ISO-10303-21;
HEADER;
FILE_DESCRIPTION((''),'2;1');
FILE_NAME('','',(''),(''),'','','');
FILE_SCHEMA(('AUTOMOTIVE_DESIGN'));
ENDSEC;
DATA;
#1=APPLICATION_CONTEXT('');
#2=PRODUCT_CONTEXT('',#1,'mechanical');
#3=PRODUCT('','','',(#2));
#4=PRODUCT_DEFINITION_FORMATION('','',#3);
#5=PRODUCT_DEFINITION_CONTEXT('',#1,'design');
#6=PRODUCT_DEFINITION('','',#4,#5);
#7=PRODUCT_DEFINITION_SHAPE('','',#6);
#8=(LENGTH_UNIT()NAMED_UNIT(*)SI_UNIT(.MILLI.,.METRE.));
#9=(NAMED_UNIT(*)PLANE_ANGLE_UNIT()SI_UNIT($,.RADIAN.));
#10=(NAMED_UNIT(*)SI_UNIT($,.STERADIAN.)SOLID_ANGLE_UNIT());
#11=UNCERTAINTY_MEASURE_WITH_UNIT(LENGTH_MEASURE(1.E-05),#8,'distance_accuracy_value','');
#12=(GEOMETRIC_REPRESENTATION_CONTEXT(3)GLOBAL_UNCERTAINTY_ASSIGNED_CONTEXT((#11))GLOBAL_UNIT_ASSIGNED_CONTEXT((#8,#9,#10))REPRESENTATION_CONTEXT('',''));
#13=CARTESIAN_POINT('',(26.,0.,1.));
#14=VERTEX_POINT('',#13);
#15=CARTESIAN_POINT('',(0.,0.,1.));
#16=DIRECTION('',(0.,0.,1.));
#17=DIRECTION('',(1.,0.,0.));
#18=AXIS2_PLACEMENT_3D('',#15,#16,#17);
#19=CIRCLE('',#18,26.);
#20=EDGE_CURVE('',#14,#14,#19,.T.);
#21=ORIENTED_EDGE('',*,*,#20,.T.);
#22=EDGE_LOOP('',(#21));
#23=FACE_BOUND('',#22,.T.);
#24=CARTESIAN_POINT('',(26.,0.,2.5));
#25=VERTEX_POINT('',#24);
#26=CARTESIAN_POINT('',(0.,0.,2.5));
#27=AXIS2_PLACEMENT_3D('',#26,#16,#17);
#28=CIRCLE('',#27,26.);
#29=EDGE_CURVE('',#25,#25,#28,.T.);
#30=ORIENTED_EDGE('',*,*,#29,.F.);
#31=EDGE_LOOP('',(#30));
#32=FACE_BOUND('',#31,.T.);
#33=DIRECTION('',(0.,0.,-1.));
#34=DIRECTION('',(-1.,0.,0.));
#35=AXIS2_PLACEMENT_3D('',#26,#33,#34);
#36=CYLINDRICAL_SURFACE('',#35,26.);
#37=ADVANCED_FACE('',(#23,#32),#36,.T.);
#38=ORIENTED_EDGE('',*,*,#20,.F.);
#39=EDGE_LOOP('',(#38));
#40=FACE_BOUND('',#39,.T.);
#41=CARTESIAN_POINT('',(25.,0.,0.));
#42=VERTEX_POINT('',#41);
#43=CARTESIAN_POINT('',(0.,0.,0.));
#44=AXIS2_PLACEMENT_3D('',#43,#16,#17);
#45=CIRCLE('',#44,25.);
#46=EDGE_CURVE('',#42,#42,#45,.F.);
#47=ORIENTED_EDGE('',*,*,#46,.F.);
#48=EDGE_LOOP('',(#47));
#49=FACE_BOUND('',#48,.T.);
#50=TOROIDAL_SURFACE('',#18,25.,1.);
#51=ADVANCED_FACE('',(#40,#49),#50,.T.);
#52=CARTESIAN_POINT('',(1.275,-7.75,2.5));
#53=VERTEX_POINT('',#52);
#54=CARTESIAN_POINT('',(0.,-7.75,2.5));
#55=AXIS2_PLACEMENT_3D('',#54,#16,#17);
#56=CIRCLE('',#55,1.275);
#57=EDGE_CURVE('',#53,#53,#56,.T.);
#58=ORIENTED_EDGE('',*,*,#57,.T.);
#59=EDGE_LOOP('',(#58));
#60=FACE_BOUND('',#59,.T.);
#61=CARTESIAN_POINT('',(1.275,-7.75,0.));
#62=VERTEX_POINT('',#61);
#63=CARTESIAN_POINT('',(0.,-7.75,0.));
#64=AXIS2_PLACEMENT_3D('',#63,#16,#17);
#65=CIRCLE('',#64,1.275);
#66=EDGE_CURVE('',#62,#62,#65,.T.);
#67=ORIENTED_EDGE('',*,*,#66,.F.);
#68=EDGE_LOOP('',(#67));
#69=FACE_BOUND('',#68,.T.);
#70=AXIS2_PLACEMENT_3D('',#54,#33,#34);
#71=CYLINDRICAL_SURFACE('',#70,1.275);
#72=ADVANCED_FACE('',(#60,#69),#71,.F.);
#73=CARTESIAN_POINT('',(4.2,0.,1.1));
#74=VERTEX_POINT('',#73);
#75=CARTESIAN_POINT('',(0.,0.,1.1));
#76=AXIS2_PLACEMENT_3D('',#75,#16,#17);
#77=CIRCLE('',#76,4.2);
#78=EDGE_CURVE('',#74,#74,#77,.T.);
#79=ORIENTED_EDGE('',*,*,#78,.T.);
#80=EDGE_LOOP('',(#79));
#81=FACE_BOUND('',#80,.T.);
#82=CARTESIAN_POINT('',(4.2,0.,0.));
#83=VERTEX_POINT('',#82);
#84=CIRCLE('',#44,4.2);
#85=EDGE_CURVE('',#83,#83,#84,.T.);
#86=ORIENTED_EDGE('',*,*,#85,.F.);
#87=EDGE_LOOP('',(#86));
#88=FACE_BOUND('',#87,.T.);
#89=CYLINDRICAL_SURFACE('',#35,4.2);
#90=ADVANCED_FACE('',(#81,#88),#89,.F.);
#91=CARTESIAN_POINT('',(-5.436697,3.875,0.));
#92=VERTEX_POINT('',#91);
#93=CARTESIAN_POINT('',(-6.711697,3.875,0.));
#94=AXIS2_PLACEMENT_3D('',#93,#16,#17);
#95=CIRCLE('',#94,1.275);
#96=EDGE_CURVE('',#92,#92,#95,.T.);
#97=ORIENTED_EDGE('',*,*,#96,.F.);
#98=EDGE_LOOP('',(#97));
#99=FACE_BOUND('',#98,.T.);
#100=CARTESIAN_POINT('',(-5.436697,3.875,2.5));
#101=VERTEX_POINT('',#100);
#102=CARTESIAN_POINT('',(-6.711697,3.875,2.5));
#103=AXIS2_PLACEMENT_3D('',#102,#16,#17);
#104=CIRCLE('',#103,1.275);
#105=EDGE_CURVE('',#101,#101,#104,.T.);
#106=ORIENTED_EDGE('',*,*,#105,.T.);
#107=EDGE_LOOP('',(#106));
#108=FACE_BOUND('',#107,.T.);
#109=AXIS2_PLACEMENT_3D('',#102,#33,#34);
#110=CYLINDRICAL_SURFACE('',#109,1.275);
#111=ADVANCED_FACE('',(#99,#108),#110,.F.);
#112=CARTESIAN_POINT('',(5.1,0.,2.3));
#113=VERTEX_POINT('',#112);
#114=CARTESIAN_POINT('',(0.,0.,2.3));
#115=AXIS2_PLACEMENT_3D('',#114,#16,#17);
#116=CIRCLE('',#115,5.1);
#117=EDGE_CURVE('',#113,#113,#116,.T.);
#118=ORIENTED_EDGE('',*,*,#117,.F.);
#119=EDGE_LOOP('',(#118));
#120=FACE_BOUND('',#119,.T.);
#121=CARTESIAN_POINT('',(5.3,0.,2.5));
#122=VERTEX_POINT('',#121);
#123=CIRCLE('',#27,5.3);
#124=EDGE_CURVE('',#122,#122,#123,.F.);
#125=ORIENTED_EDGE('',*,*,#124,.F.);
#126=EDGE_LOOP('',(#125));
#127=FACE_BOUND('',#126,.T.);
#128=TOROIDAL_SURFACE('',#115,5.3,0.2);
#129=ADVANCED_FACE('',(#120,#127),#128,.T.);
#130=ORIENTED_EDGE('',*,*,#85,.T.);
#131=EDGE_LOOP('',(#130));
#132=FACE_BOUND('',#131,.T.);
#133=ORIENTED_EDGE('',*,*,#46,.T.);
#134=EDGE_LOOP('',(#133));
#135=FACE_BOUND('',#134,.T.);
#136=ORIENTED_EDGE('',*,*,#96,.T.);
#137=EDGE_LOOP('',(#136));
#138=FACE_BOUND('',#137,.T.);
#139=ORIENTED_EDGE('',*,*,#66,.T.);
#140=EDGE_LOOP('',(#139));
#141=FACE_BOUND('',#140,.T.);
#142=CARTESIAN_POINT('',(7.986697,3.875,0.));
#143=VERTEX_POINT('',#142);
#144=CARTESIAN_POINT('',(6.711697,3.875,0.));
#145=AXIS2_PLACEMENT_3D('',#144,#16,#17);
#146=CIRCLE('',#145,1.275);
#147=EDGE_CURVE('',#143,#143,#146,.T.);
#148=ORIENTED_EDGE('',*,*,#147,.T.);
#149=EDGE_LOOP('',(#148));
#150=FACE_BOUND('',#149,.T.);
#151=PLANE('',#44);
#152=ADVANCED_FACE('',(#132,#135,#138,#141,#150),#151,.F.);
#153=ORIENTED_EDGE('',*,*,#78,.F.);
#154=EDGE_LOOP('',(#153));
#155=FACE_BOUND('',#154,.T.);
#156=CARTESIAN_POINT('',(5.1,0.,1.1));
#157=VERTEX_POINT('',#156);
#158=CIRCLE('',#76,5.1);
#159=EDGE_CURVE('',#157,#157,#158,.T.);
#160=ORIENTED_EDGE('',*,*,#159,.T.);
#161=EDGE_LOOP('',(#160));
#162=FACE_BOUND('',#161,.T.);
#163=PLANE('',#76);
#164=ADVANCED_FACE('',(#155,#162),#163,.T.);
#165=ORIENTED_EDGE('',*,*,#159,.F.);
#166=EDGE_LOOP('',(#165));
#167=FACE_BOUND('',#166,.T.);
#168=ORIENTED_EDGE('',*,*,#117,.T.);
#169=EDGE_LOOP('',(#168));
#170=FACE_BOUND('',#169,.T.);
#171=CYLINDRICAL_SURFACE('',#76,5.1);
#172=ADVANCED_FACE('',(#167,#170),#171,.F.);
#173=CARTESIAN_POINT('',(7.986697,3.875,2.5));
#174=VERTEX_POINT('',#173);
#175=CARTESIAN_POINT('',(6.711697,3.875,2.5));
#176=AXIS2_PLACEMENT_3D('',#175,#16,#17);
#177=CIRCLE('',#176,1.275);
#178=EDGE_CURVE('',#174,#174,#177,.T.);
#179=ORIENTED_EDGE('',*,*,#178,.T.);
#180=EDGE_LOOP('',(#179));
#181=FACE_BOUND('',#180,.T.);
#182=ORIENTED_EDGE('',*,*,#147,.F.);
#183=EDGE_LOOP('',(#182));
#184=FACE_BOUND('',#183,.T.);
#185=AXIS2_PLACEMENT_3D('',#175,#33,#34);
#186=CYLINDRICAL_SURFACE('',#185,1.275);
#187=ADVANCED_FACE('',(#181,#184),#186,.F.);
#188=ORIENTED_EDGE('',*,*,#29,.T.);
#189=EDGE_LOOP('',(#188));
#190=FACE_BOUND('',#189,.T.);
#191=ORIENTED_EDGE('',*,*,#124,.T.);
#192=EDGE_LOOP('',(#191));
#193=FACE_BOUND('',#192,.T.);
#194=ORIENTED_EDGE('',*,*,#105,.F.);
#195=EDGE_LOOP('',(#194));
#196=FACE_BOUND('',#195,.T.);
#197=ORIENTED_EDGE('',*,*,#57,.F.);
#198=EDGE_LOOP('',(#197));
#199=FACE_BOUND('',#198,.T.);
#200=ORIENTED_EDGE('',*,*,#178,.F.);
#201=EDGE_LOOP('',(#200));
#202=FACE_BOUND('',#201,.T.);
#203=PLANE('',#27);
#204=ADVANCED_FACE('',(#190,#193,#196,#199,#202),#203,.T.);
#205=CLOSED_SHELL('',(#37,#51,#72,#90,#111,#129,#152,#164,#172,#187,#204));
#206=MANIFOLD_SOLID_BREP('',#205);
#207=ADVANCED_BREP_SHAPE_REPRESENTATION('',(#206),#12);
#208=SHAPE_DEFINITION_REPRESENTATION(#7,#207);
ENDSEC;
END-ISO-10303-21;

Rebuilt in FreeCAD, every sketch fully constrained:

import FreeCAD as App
import Part
import Sketcher
from FreeCAD import Vector


def edges_at(feature, points):
    """Names of the edges that pass closest to the given points."""
    edges = feature.Shape.Edges
    near = lambda p: min(range(len(edges)), key=lambda i: edges[i].distToShape(Part.Vertex(*p))[0])
    return sorted({f"Edge{near(p) + 1}" for p in points})

doc = App.newDocument("Part")
body = doc.addObject("PartDesign::Body", "Body")

sketch1 = doc.addObject("Sketcher::SketchObject", "Sketch")
body.addObject(sketch1)
sketch1.AttachmentSupport = (doc.XY_Plane, [""])
sketch1.MapMode = "FlatFace"
sketch1.addGeometry(Part.Circle(Vector(0, 0, 0), Vector(0, 0, 1), 26), False)
sketch1.addGeometry(Part.Circle(Vector(0, -7.75, 0), Vector(0, 0, 1), 1.275), False)
sketch1.addGeometry(Part.Circle(Vector(-6.711697, 3.875, 0), Vector(0, 0, 1), 1.275), False)
sketch1.addGeometry(Part.Circle(Vector(0, 0, 0), Vector(0, 0, 1), 4.2), False)
sketch1.addGeometry(Part.Circle(Vector(6.711697, 3.875, 0), Vector(0, 0, 1), 1.275), False)
sketch1.addConstraint(Sketcher.Constraint("Coincident", 0, 3, -1, 1))
sketch1.addConstraint(Sketcher.Constraint("Coincident", 3, 3, -1, 1))
sketch1.addConstraint(Sketcher.Constraint("Equal", 1, 2))
sketch1.addConstraint(Sketcher.Constraint("Equal", 2, 4))
sketch1.addConstraint(Sketcher.Constraint("Symmetric", 2, 3, 4, 3, -2))
sketch1.addConstraint(Sketcher.Constraint("PointOnObject", 1, 3, -2))
sketch1.addConstraint(Sketcher.Constraint("Diameter", 0, 52.0))
sketch1.addConstraint(Sketcher.Constraint("Diameter", 3, 8.4))
sketch1.addConstraint(Sketcher.Constraint("Diameter", 1, 2.55))
sketch1.addConstraint(Sketcher.Constraint("DistanceY", 1, 3, -1, 1, 7.75))
sketch1.addConstraint(Sketcher.Constraint("DistanceY", -1, 1, 2, 3, 3.875))
sketch1.addConstraint(Sketcher.Constraint("DistanceX", 2, 3, -1, 1, 6.711697))
pad1 = doc.addObject("PartDesign::Pad", "Pad")
body.addObject(pad1)
pad1.Profile = sketch1
pad1.Length = 2.5

sketch2 = doc.addObject("Sketcher::SketchObject", "Sketch001")
body.addObject(sketch2)
sketch2.AttachmentSupport = (doc.XY_Plane, [""])
sketch2.MapMode = "FlatFace"
sketch2.AttachmentOffset = App.Placement(Vector(0, 0, 2.5), App.Rotation())
sketch2.addGeometry(Part.Circle(Vector(0, 0, 0), Vector(0, 0, 1), 5.1), False)
sketch2.addConstraint(Sketcher.Constraint("Coincident", 0, 3, -1, 1))
sketch2.addConstraint(Sketcher.Constraint("Diameter", 0, 10.2))
pocket1 = doc.addObject("PartDesign::Pocket", "Pocket")
body.addObject(pocket1)
pocket1.Profile = sketch2
pocket1.Length = 1.4
doc.recompute()

fillet = doc.addObject("PartDesign::Fillet", "Fillet")
body.addObject(fillet)
fillet.Base = (pocket1, edges_at(pocket1, [(-5.1, 0, 2.5)]))
fillet.Radius = 0.2
doc.recompute()

fillet2 = doc.addObject("PartDesign::Fillet", "Fillet001")
body.addObject(fillet2)
fillet2.Base = (fillet, edges_at(fillet, [(-26, 0, 0)]))
fillet2.Radius = 1

doc.recompute()
